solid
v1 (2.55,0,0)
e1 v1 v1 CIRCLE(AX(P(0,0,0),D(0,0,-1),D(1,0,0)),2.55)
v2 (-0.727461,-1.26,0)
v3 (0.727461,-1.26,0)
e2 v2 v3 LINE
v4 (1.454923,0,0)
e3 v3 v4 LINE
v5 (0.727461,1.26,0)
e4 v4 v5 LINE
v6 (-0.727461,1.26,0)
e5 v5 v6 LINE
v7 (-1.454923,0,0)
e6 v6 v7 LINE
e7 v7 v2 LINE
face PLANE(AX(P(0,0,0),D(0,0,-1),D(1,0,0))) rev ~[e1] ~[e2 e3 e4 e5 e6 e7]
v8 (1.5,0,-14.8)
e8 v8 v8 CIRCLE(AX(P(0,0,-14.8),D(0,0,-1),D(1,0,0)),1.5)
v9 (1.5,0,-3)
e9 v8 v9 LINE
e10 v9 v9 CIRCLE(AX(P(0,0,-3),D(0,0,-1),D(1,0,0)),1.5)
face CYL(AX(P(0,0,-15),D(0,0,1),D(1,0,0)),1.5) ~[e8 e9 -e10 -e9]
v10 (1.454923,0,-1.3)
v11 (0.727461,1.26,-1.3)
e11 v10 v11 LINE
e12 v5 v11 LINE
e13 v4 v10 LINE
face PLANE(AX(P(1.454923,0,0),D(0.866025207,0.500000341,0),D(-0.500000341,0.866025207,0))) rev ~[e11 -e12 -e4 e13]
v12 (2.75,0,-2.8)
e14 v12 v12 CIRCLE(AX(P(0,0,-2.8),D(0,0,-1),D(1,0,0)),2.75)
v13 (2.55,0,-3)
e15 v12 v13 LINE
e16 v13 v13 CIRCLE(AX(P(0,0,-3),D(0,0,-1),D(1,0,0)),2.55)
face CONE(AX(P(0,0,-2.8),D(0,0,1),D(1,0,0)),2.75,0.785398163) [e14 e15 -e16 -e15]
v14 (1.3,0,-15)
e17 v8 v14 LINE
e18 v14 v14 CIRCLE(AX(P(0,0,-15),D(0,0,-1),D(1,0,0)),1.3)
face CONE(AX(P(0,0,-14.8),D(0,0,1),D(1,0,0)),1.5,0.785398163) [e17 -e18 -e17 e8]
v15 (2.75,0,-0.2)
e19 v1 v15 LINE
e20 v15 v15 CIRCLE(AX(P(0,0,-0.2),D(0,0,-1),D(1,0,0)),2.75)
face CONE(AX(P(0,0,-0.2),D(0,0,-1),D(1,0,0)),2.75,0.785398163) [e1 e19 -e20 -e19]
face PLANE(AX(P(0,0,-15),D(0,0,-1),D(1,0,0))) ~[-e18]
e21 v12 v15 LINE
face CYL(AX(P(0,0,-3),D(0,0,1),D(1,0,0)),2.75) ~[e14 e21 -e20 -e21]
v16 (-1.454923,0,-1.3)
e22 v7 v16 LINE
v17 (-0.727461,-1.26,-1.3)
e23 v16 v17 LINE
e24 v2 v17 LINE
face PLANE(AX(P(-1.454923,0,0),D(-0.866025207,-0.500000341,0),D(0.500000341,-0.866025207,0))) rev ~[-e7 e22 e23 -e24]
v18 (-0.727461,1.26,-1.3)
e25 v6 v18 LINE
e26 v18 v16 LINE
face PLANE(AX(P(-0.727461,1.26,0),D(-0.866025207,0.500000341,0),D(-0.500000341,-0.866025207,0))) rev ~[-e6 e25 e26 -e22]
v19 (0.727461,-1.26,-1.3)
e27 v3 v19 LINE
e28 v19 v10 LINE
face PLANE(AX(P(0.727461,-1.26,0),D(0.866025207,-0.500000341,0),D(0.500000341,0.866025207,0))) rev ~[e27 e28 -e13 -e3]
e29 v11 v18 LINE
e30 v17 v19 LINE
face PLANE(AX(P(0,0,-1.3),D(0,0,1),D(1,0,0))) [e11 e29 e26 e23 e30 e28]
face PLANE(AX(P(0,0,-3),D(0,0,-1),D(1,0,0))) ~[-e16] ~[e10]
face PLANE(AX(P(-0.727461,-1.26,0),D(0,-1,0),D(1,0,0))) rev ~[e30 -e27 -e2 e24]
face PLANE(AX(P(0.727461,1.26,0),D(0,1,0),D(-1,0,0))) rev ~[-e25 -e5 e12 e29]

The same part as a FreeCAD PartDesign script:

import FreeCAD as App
import Part
import Sketcher

V = App.Vector
Q = App.Units.Quantity


def edges_at(feature, points):
    """Names of the edges that pass closest to the given points."""
    edges = feature.Shape.Edges
    near = lambda p: min(range(len(edges)), key=lambda i: edges[i].distToShape(Part.Vertex(*p))[0])
    return sorted({f"Edge{near(p) + 1}" for p in points})

doc = App.newDocument("Part")
body = doc.addObject("PartDesign::Body", "Body")

# Sketch on XZ plane
sketch1 = doc.addObject("Sketcher::SketchObject", "Sketch")
body.addObject(sketch1)
sketch1.AttachmentSupport = (doc.XZ_Plane, [""])
sketch1.MapMode = "FlatFace"
sketch1.addGeometry(Part.LineSegment(V(2.8, 0, 0), V(0, 0, 0)), False)
sketch1.addGeometry(Part.LineSegment(V(0, 0, 0), V(0, -15, 0)), False)
sketch1.addGeometry(Part.LineSegment(V(0, -15, 0), V(1.5, -15, 0)), False)
sketch1.addGeometry(Part.LineSegment(V(1.5, -15, 0), V(1.5, -3, 0)), False)
sketch1.addGeometry(Part.LineSegment(V(1.5, -3, 0), V(2.8, -3, 0)), False)
sketch1.addGeometry(Part.LineSegment(V(2.8, -3, 0), V(2.8, 0, 0)), False)
sketch1.addConstraint(Sketcher.Constraint("Coincident", 0, 2, 1, 1))
sketch1.addConstraint(Sketcher.Constraint("Coincident", 1, 2, 2, 1))
sketch1.addConstraint(Sketcher.Constraint("Coincident", 2, 2, 3, 1))
sketch1.addConstraint(Sketcher.Constraint("Coincident", 3, 2, 4, 1))
sketch1.addConstraint(Sketcher.Constraint("Coincident", 4, 2, 5, 1))
sketch1.addConstraint(Sketcher.Constraint("Coincident", 5, 2, 0, 1))
sketch1.addConstraint(Sketcher.Constraint("Horizontal", 0))
sketch1.addConstraint(Sketcher.Constraint("Vertical", 1))
sketch1.addConstraint(Sketcher.Constraint("Horizontal", 2))
sketch1.addConstraint(Sketcher.Constraint("Vertical", 3))
sketch1.addConstraint(Sketcher.Constraint("Horizontal", 4))
sketch1.addConstraint(Sketcher.Constraint("Vertical", 5))
sketch1.addConstraint(Sketcher.Constraint("Coincident", 0, 2, -1, 1))
sketch1.addConstraint(Sketcher.Constraint("DistanceY", 1, 2, 1, 1, Q("15 mm")))
sketch1.addConstraint(Sketcher.Constraint("DistanceY", 3, 1, 3, 2, Q("12 mm")))
sketch1.addConstraint(Sketcher.Constraint("DistanceX", 2, 1, 2, 2, Q("1.5 mm")))
sketch1.addConstraint(Sketcher.Constraint("DistanceX", 0, 2, 0, 1, Q("2.75 mm")))
revolution = doc.addObject("PartDesign::Revolution", "Revolution")
body.addObject(revolution)
revolution.Profile = sketch1
revolution.ReferenceAxis = (sketch1, ["V_Axis"])
revolution.Angle = 360

# Sketch on XY plane
sketch2 = doc.addObject("Sketcher::SketchObject", "Sketch001")
body.addObject(sketch2)
sketch2.AttachmentSupport = (doc.XY_Plane, [""])
sketch2.MapMode = "FlatFace"
sketch2.addGeometry(Part.LineSegment(V(-1.5, 0, 0), V(-0.7, -1.3, 0)), False)
sketch2.addGeometry(Part.LineSegment(V(-0.7, -1.3, 0), V(0.7, -1.3, 0)), False)
sketch2.addGeometry(Part.LineSegment(V(0.7, -1.3, 0), V(1.5, 0, 0)), False)
sketch2.addGeometry(Part.LineSegment(V(1.5, 0, 0), V(0.7, 1.3, 0)), False)
sketch2.addGeometry(Part.LineSegment(V(0.7, 1.3, 0), V(-0.7, 1.3, 0)), False)
sketch2.addGeometry(Part.LineSegment(V(-0.7, 1.3, 0), V(-1.5, 0, 0)), False)
sketch2.addConstraint(Sketcher.Constraint("Coincident", 0, 2, 1, 1))
sketch2.addConstraint(Sketcher.Constraint("Coincident", 1, 2, 2, 1))
sketch2.addConstraint(Sketcher.Constraint("Coincident", 2, 2, 3, 1))
sketch2.addConstraint(Sketcher.Constraint("Coincident", 3, 2, 4, 1))
sketch2.addConstraint(Sketcher.Constraint("Coincident", 4, 2, 5, 1))
sketch2.addConstraint(Sketcher.Constraint("Coincident", 5, 2, 0, 1))
sketch2.addConstraint(Sketcher.Constraint("Horizontal", 1))
sketch2.addConstraint(Sketcher.Constraint("Horizontal", 4))
sketch2.addConstraint(Sketcher.Constraint("Symmetric", 0, 2, 3, 2, -1, 1))
sketch2.addConstraint(Sketcher.Constraint("Symmetric", 2, 2, 5, 2, -1, 1))
sketch2.addConstraint(Sketcher.Constraint("PointOnObject", 2, 2, -1))
sketch2.addConstraint(Sketcher.Constraint("Parallel", 2, 5))
sketch2.addConstraint(Sketcher.Constraint("Vertical", 1, 2, 3, 2))
sketch2.addConstraint(Sketcher.Constraint("DistanceY", 0, 2, -1, 1, Q("1.26 mm")))
sketch2.addConstraint(Sketcher.Constraint("DistanceX", 1, 1, 1, 2, Q("1.454922 mm")))
sketch2.addConstraint(Sketcher.Constraint("DistanceX", 1, 2, 2, 2, Q("0.727462 mm")))
pocket1 = doc.addObject("PartDesign::Pocket", "Pocket")
body.addObject(pocket1)
pocket1.Profile = sketch2
pocket1.Length = 1.3
doc.recompute()

chamfer = doc.addObject("PartDesign::Chamfer", "Chamfer")
body.addObject(chamfer)
chamfer.Base = (pocket1, edges_at(pocket1, [
    (-2.75, 0, -3),
    (-2.75, 0, 0),
    (2.75, 0, -1.5),
    (-1.5, 0, -15),
]))
chamfer.Size = 0.2

doc.recompute()
